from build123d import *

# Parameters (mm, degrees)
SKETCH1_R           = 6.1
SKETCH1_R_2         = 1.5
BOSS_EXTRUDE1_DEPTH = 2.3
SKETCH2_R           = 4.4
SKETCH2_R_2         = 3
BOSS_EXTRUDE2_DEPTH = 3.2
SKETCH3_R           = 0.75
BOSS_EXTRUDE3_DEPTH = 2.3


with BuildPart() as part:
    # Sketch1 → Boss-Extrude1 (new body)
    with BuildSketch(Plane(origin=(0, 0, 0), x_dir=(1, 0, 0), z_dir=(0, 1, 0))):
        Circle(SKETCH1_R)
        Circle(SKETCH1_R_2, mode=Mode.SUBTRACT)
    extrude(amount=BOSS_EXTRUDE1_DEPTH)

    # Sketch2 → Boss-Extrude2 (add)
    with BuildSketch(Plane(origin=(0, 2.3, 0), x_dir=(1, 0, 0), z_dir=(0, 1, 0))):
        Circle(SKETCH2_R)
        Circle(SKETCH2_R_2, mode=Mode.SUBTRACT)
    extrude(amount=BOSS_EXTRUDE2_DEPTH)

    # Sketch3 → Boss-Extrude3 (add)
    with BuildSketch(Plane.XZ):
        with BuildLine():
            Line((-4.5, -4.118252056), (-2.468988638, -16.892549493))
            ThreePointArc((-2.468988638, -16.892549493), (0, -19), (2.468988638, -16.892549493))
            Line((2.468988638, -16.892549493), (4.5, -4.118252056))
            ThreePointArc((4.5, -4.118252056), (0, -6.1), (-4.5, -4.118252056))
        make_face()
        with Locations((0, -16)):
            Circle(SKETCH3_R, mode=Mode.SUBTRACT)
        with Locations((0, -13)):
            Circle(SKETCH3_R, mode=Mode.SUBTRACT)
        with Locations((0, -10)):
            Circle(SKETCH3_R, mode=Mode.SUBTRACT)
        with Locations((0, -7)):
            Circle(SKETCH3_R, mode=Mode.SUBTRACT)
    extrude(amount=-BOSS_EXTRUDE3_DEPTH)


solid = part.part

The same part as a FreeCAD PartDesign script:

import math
import FreeCAD as App
import Part
import Sketcher
from FreeCAD import Vector

doc = App.newDocument("Part")
body = doc.addObject("PartDesign::Body", "Body")

sketch1 = doc.addObject("Sketcher::SketchObject", "Sketch")
body.addObject(sketch1)
sketch1.AttachmentSupport = (doc.XZ_Plane, [""])
sketch1.MapMode = "FlatFace"
sketch1.addGeometry([
    Part.Circle(Vector(0, 0, 0), Vector(0, 0, 1), 6.1),
    Part.Circle(Vector(0, 0, 0), Vector(0, 0, 1), 1.5),
], False)
sketch1.addConstraint([
    Sketcher.Constraint("Coincident", 0, 3, -1, 1),
    Sketcher.Constraint("Coincident", 1, 3, -1, 1),
    Sketcher.Constraint("Diameter", 1, 3.0),
    Sketcher.Constraint("Diameter", 0, 12.2),
])
pad1 = doc.addObject("PartDesign::Pad", "Pad")
body.addObject(pad1)
pad1.Profile = sketch1
pad1.Length = 2.3
pad1.Reversed = True

sketch2 = doc.addObject("Sketcher::SketchObject", "Sketch001")
body.addObject(sketch2)
sketch2.AttachmentSupport = (doc.XZ_Plane, [""])
sketch2.MapMode = "FlatFace"
sketch2.AttachmentOffset = App.Placement(Vector(0, 0, -2.3), App.Rotation())
sketch2.addGeometry([
    Part.Circle(Vector(0, 0, 0), Vector(0, 0, 1), 4.4),
    Part.Circle(Vector(0, 0, 0), Vector(0, 0, 1), 3),
], False)
sketch2.addConstraint([
    Sketcher.Constraint("Coincident", 0, 3, -1, 1),
    Sketcher.Constraint("Coincident", 1, 3, -1, 1),
    Sketcher.Constraint("Diameter", 1, 6.0),
    Sketcher.Constraint("Diameter", 0, 8.8),
])
pad2 = doc.addObject("PartDesign::Pad", "Pad001")
body.addObject(pad2)
pad2.Profile = sketch2
pad2.Length = 3.2
pad2.Reversed = True

sketch3 = doc.addObject("Sketcher::SketchObject", "Sketch002")
body.addObject(sketch3)
sketch3.AttachmentSupport = (doc.XZ_Plane, [""])
sketch3.MapMode = "FlatFace"
sketch3.addGeometry([
    Part.LineSegment(Vector(-4.5, -4.118252, 0), Vector(-2.468989, -16.892549, 0)),
    Part.ArcOfCircle(Part.Circle(Vector(0, -16.5, 0), Vector(0, 0, 1), 2.5), math.radians(-170.966043), math.radians(-9.033957)),
    Part.LineSegment(Vector(2.468989, -16.892549, 0), Vector(4.5, -4.118252, 0)),
    Part.ArcOfCircle(Part.Circle(Vector(0, 0, 0), Vector(0, 0, 1), 6.1), math.radians(-137.536275), math.radians(-42.463725)),
    Part.Circle(Vector(0, -16, 0), Vector(0, 0, 1), 0.75),
    Part.Circle(Vector(0, -13, 0), Vector(0, 0, 1), 0.75),
    Part.Circle(Vector(0, -10, 0), Vector(0, 0, 1), 0.75),
    Part.Circle(Vector(0, -7, 0), Vector(0, 0, 1), 0.75),
], False)
sketch3.addConstraint([
    Sketcher.Constraint("Tangent", 0, 2, 1, 1),
    Sketcher.Constraint("Tangent", 1, 2, 2, 1),
    Sketcher.Constraint("Coincident", 2, 2, 3, 2),
    Sketcher.Constraint("Coincident", 3, 1, 0, 1),
    Sketcher.Constraint("Coincident", 3, 3, -1, 1),
    Sketcher.Constraint("Equal", 4, 5),
    Sketcher.Constraint("Equal", 5, 6),
    Sketcher.Constraint("Equal", 6, 7),
    Sketcher.Constraint("Symmetric", 0, 2, 1, 2, -2),
    Sketcher.Constraint("PointOnObject", 4, 3, -2),
    Sketcher.Constraint("PointOnObject", 5, 3, -2),
    Sketcher.Constraint("PointOnObject", 6, 3, -2),
    Sketcher.Constraint("PointOnObject", 7, 3, -2),
    Sketcher.Constraint("Diameter", 4, 1.5),
    Sketcher.Constraint("Radius", 1, 2.5),
    Sketcher.Constraint("Radius", 3, 6.1),
    Sketcher.Constraint("DistanceY", 4, 3, -1, 1, 16.0),
    Sketcher.Constraint("DistanceY", 5, 3, -1, 1, 13.0),
    Sketcher.Constraint("DistanceY", 6, 3, -1, 1, 10.0),
    Sketcher.Constraint("DistanceY", 7, 3, -1, 1, 7.0),
    Sketcher.Constraint("DistanceX", 3, 1, 2, 2, 9.0),
    Sketcher.Constraint("DistanceY", 1, 3, -1, 1, 16.5),
])
pad3 = doc.addObject("PartDesign::Pad", "Pad002")
body.addObject(pad3)
pad3.Profile = sketch3
pad3.Length = 2.3
pad3.Reversed = True

doc.recompute()
